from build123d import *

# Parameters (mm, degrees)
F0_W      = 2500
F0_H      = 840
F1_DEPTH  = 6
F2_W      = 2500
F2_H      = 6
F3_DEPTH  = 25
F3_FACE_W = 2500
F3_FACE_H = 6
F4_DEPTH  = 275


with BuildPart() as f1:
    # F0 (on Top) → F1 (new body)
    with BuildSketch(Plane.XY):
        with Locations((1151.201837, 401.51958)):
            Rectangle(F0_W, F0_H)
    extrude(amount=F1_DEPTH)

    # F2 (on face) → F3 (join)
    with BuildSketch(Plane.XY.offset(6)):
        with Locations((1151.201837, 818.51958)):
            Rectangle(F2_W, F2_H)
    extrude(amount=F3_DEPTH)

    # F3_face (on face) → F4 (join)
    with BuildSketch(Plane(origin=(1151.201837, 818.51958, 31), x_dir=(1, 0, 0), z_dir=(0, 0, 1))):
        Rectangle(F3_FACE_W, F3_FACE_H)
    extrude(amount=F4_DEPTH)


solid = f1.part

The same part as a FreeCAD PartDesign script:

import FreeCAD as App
import Part
import Sketcher

doc = App.newDocument("Part")
body = doc.addObject("PartDesign::Body", "Body")

# Sketch on XY plane
sketch1 = body.newObject("Sketcher::SketchObject", "Sketch")
sketch1.AttachmentSupport = (doc.getObject("XY_Plane"), [""])
sketch1.MapMode = "FlatFace"
sketch1.addGeometry(Part.LineSegment(App.Vector(-98.798163, 821.51958, 0), App.Vector(-98.798163, -18.48042, 0)), False)
sketch1.addGeometry(Part.LineSegment(App.Vector(-98.798163, -18.48042, 0), App.Vector(2401.201837, -18.48042, 0)), False)
sketch1.addGeometry(Part.LineSegment(App.Vector(2401.201837, -18.48042, 0), App.Vector(2401.201837, 821.51958, 0)), False)
sketch1.addGeometry(Part.LineSegment(App.Vector(2401.201837, 821.51958, 0), App.Vector(-98.798163, 821.51958, 0)), False)
sketch1.addConstraint(Sketcher.Constraint("Coincident", 0, 2, 1, 1))
sketch1.addConstraint(Sketcher.Constraint("Coincident", 1, 2, 2, 1))
sketch1.addConstraint(Sketcher.Constraint("Coincident", 2, 2, 3, 1))
sketch1.addConstraint(Sketcher.Constraint("Coincident", 3, 2, 0, 1))
sketch1.addConstraint(Sketcher.Constraint("Vertical", 0))
sketch1.addConstraint(Sketcher.Constraint("Horizontal", 1))
sketch1.addConstraint(Sketcher.Constraint("Vertical", 2))
sketch1.addConstraint(Sketcher.Constraint("Horizontal", 3))
sketch1.addConstraint(Sketcher.Constraint("DistanceX", 1, 1, 1, 2, 2500.0))
sketch1.addConstraint(Sketcher.Constraint("DistanceY", 0, 2, 0, 1, 840.0))
sketch1.addConstraint(Sketcher.Constraint("DistanceY", 0, 2, -1, 1, 18.48042))
sketch1.addConstraint(Sketcher.Constraint("DistanceX", 0, 2, -1, 1, 98.798163))
pad1 = body.newObject("PartDesign::Pad", "Pad")
pad1.Profile = sketch1
pad1.Length = 6

# Sketch on XY plane
sketch2 = body.newObject("Sketcher::SketchObject", "Sketch001")
sketch2.AttachmentSupport = (doc.getObject("XY_Plane"), [""])
sketch2.MapMode = "FlatFace"
sketch2.AttachmentOffset = App.Placement(App.Vector(0, 0, 6), App.Rotation())
sketch2.addGeometry(Part.LineSegment(App.Vector(-98.798163, 821.51958, 0), App.Vector(-98.798163, 815.51958, 0)), False)
sketch2.addGeometry(Part.LineSegment(App.Vector(-98.798163, 815.51958, 0), App.Vector(2401.201837, 815.51958, 0)), False)
sketch2.addGeometry(Part.LineSegment(App.Vector(2401.201837, 815.51958, 0), App.Vector(2401.201837, 821.51958, 0)), False)
sketch2.addGeometry(Part.LineSegment(App.Vector(2401.201837, 821.51958, 0), App.Vector(-98.798163, 821.51958, 0)), False)
sketch2.addConstraint(Sketcher.Constraint("Coincident", 0, 2, 1, 1))
sketch2.addConstraint(Sketcher.Constraint("Coincident", 1, 2, 2, 1))
sketch2.addConstraint(Sketcher.Constraint("Coincident", 2, 2, 3, 1))
sketch2.addConstraint(Sketcher.Constraint("Coincident", 3, 2, 0, 1))
sketch2.addConstraint(Sketcher.Constraint("Vertical", 0))
sketch2.addConstraint(Sketcher.Constraint("Horizontal", 1))
sketch2.addConstraint(Sketcher.Constraint("Vertical", 2))
sketch2.addConstraint(Sketcher.Constraint("Horizontal", 3))
sketch2.addConstraint(Sketcher.Constraint("DistanceX", 1, 1, 1, 2, 2500.0))
sketch2.addConstraint(Sketcher.Constraint("DistanceY", 0, 2, 0, 1, 6.0))
sketch2.addConstraint(Sketcher.Constraint("DistanceY", -1, 1, 0, 2, 815.51958))
sketch2.addConstraint(Sketcher.Constraint("DistanceX", 0, 2, -1, 1, 98.798163))
pad2 = body.newObject("PartDesign::Pad", "Pad001")
pad2.Profile = sketch2
pad2.Length = 25

# Sketch on XY plane
sketch3 = body.newObject("Sketcher::SketchObject", "Sketch002")
sketch3.AttachmentSupport = (doc.getObject("XY_Plane"), [""])
sketch3.MapMode = "FlatFace"
sketch3.AttachmentOffset = App.Placement(App.Vector(0, 0, 31), App.Rotation())
sketch3.addGeometry(Part.LineSegment(App.Vector(-98.798163, 821.51958, 0), App.Vector(-98.798163, 815.51958, 0)), False)
sketch3.addGeometry(Part.LineSegment(App.Vector(-98.798163, 815.51958, 0), App.Vector(2401.201837, 815.51958, 0)), False)
sketch3.addGeometry(Part.LineSegment(App.Vector(2401.201837, 815.51958, 0), App.Vector(2401.201837, 821.51958, 0)), False)
sketch3.addGeometry(Part.LineSegment(App.Vector(2401.201837, 821.51958, 0), App.Vector(-98.798163, 821.51958, 0)), False)
sketch3.addConstraint(Sketcher.Constraint("Coincident", 0, 2, 1, 1))
sketch3.addConstraint(Sketcher.Constraint("Coincident", 1, 2, 2, 1))
sketch3.addConstraint(Sketcher.Constraint("Coincident", 2, 2, 3, 1))
sketch3.addConstraint(Sketcher.Constraint("Coincident", 3, 2, 0, 1))
sketch3.addConstraint(Sketcher.Constraint("Vertical", 0))
sketch3.addConstraint(Sketcher.Constraint("Horizontal", 1))
sketch3.addConstraint(Sketcher.Constraint("Vertical", 2))
sketch3.addConstraint(Sketcher.Constraint("Horizontal", 3))
sketch3.addConstraint(Sketcher.Constraint("DistanceX", 1, 1, 1, 2, 2500.0))
sketch3.addConstraint(Sketcher.Constraint("DistanceY", 0, 2, 0, 1, 6.0))
sketch3.addConstraint(Sketcher.Constraint("DistanceY", -1, 1, 0, 2, 815.51958))
sketch3.addConstraint(Sketcher.Constraint("DistanceX", 0, 2, -1, 1, 98.798163))
pad3 = body.newObject("PartDesign::Pad", "Pad002")
pad3.Profile = sketch3
pad3.Length = 275

doc.recompute()
